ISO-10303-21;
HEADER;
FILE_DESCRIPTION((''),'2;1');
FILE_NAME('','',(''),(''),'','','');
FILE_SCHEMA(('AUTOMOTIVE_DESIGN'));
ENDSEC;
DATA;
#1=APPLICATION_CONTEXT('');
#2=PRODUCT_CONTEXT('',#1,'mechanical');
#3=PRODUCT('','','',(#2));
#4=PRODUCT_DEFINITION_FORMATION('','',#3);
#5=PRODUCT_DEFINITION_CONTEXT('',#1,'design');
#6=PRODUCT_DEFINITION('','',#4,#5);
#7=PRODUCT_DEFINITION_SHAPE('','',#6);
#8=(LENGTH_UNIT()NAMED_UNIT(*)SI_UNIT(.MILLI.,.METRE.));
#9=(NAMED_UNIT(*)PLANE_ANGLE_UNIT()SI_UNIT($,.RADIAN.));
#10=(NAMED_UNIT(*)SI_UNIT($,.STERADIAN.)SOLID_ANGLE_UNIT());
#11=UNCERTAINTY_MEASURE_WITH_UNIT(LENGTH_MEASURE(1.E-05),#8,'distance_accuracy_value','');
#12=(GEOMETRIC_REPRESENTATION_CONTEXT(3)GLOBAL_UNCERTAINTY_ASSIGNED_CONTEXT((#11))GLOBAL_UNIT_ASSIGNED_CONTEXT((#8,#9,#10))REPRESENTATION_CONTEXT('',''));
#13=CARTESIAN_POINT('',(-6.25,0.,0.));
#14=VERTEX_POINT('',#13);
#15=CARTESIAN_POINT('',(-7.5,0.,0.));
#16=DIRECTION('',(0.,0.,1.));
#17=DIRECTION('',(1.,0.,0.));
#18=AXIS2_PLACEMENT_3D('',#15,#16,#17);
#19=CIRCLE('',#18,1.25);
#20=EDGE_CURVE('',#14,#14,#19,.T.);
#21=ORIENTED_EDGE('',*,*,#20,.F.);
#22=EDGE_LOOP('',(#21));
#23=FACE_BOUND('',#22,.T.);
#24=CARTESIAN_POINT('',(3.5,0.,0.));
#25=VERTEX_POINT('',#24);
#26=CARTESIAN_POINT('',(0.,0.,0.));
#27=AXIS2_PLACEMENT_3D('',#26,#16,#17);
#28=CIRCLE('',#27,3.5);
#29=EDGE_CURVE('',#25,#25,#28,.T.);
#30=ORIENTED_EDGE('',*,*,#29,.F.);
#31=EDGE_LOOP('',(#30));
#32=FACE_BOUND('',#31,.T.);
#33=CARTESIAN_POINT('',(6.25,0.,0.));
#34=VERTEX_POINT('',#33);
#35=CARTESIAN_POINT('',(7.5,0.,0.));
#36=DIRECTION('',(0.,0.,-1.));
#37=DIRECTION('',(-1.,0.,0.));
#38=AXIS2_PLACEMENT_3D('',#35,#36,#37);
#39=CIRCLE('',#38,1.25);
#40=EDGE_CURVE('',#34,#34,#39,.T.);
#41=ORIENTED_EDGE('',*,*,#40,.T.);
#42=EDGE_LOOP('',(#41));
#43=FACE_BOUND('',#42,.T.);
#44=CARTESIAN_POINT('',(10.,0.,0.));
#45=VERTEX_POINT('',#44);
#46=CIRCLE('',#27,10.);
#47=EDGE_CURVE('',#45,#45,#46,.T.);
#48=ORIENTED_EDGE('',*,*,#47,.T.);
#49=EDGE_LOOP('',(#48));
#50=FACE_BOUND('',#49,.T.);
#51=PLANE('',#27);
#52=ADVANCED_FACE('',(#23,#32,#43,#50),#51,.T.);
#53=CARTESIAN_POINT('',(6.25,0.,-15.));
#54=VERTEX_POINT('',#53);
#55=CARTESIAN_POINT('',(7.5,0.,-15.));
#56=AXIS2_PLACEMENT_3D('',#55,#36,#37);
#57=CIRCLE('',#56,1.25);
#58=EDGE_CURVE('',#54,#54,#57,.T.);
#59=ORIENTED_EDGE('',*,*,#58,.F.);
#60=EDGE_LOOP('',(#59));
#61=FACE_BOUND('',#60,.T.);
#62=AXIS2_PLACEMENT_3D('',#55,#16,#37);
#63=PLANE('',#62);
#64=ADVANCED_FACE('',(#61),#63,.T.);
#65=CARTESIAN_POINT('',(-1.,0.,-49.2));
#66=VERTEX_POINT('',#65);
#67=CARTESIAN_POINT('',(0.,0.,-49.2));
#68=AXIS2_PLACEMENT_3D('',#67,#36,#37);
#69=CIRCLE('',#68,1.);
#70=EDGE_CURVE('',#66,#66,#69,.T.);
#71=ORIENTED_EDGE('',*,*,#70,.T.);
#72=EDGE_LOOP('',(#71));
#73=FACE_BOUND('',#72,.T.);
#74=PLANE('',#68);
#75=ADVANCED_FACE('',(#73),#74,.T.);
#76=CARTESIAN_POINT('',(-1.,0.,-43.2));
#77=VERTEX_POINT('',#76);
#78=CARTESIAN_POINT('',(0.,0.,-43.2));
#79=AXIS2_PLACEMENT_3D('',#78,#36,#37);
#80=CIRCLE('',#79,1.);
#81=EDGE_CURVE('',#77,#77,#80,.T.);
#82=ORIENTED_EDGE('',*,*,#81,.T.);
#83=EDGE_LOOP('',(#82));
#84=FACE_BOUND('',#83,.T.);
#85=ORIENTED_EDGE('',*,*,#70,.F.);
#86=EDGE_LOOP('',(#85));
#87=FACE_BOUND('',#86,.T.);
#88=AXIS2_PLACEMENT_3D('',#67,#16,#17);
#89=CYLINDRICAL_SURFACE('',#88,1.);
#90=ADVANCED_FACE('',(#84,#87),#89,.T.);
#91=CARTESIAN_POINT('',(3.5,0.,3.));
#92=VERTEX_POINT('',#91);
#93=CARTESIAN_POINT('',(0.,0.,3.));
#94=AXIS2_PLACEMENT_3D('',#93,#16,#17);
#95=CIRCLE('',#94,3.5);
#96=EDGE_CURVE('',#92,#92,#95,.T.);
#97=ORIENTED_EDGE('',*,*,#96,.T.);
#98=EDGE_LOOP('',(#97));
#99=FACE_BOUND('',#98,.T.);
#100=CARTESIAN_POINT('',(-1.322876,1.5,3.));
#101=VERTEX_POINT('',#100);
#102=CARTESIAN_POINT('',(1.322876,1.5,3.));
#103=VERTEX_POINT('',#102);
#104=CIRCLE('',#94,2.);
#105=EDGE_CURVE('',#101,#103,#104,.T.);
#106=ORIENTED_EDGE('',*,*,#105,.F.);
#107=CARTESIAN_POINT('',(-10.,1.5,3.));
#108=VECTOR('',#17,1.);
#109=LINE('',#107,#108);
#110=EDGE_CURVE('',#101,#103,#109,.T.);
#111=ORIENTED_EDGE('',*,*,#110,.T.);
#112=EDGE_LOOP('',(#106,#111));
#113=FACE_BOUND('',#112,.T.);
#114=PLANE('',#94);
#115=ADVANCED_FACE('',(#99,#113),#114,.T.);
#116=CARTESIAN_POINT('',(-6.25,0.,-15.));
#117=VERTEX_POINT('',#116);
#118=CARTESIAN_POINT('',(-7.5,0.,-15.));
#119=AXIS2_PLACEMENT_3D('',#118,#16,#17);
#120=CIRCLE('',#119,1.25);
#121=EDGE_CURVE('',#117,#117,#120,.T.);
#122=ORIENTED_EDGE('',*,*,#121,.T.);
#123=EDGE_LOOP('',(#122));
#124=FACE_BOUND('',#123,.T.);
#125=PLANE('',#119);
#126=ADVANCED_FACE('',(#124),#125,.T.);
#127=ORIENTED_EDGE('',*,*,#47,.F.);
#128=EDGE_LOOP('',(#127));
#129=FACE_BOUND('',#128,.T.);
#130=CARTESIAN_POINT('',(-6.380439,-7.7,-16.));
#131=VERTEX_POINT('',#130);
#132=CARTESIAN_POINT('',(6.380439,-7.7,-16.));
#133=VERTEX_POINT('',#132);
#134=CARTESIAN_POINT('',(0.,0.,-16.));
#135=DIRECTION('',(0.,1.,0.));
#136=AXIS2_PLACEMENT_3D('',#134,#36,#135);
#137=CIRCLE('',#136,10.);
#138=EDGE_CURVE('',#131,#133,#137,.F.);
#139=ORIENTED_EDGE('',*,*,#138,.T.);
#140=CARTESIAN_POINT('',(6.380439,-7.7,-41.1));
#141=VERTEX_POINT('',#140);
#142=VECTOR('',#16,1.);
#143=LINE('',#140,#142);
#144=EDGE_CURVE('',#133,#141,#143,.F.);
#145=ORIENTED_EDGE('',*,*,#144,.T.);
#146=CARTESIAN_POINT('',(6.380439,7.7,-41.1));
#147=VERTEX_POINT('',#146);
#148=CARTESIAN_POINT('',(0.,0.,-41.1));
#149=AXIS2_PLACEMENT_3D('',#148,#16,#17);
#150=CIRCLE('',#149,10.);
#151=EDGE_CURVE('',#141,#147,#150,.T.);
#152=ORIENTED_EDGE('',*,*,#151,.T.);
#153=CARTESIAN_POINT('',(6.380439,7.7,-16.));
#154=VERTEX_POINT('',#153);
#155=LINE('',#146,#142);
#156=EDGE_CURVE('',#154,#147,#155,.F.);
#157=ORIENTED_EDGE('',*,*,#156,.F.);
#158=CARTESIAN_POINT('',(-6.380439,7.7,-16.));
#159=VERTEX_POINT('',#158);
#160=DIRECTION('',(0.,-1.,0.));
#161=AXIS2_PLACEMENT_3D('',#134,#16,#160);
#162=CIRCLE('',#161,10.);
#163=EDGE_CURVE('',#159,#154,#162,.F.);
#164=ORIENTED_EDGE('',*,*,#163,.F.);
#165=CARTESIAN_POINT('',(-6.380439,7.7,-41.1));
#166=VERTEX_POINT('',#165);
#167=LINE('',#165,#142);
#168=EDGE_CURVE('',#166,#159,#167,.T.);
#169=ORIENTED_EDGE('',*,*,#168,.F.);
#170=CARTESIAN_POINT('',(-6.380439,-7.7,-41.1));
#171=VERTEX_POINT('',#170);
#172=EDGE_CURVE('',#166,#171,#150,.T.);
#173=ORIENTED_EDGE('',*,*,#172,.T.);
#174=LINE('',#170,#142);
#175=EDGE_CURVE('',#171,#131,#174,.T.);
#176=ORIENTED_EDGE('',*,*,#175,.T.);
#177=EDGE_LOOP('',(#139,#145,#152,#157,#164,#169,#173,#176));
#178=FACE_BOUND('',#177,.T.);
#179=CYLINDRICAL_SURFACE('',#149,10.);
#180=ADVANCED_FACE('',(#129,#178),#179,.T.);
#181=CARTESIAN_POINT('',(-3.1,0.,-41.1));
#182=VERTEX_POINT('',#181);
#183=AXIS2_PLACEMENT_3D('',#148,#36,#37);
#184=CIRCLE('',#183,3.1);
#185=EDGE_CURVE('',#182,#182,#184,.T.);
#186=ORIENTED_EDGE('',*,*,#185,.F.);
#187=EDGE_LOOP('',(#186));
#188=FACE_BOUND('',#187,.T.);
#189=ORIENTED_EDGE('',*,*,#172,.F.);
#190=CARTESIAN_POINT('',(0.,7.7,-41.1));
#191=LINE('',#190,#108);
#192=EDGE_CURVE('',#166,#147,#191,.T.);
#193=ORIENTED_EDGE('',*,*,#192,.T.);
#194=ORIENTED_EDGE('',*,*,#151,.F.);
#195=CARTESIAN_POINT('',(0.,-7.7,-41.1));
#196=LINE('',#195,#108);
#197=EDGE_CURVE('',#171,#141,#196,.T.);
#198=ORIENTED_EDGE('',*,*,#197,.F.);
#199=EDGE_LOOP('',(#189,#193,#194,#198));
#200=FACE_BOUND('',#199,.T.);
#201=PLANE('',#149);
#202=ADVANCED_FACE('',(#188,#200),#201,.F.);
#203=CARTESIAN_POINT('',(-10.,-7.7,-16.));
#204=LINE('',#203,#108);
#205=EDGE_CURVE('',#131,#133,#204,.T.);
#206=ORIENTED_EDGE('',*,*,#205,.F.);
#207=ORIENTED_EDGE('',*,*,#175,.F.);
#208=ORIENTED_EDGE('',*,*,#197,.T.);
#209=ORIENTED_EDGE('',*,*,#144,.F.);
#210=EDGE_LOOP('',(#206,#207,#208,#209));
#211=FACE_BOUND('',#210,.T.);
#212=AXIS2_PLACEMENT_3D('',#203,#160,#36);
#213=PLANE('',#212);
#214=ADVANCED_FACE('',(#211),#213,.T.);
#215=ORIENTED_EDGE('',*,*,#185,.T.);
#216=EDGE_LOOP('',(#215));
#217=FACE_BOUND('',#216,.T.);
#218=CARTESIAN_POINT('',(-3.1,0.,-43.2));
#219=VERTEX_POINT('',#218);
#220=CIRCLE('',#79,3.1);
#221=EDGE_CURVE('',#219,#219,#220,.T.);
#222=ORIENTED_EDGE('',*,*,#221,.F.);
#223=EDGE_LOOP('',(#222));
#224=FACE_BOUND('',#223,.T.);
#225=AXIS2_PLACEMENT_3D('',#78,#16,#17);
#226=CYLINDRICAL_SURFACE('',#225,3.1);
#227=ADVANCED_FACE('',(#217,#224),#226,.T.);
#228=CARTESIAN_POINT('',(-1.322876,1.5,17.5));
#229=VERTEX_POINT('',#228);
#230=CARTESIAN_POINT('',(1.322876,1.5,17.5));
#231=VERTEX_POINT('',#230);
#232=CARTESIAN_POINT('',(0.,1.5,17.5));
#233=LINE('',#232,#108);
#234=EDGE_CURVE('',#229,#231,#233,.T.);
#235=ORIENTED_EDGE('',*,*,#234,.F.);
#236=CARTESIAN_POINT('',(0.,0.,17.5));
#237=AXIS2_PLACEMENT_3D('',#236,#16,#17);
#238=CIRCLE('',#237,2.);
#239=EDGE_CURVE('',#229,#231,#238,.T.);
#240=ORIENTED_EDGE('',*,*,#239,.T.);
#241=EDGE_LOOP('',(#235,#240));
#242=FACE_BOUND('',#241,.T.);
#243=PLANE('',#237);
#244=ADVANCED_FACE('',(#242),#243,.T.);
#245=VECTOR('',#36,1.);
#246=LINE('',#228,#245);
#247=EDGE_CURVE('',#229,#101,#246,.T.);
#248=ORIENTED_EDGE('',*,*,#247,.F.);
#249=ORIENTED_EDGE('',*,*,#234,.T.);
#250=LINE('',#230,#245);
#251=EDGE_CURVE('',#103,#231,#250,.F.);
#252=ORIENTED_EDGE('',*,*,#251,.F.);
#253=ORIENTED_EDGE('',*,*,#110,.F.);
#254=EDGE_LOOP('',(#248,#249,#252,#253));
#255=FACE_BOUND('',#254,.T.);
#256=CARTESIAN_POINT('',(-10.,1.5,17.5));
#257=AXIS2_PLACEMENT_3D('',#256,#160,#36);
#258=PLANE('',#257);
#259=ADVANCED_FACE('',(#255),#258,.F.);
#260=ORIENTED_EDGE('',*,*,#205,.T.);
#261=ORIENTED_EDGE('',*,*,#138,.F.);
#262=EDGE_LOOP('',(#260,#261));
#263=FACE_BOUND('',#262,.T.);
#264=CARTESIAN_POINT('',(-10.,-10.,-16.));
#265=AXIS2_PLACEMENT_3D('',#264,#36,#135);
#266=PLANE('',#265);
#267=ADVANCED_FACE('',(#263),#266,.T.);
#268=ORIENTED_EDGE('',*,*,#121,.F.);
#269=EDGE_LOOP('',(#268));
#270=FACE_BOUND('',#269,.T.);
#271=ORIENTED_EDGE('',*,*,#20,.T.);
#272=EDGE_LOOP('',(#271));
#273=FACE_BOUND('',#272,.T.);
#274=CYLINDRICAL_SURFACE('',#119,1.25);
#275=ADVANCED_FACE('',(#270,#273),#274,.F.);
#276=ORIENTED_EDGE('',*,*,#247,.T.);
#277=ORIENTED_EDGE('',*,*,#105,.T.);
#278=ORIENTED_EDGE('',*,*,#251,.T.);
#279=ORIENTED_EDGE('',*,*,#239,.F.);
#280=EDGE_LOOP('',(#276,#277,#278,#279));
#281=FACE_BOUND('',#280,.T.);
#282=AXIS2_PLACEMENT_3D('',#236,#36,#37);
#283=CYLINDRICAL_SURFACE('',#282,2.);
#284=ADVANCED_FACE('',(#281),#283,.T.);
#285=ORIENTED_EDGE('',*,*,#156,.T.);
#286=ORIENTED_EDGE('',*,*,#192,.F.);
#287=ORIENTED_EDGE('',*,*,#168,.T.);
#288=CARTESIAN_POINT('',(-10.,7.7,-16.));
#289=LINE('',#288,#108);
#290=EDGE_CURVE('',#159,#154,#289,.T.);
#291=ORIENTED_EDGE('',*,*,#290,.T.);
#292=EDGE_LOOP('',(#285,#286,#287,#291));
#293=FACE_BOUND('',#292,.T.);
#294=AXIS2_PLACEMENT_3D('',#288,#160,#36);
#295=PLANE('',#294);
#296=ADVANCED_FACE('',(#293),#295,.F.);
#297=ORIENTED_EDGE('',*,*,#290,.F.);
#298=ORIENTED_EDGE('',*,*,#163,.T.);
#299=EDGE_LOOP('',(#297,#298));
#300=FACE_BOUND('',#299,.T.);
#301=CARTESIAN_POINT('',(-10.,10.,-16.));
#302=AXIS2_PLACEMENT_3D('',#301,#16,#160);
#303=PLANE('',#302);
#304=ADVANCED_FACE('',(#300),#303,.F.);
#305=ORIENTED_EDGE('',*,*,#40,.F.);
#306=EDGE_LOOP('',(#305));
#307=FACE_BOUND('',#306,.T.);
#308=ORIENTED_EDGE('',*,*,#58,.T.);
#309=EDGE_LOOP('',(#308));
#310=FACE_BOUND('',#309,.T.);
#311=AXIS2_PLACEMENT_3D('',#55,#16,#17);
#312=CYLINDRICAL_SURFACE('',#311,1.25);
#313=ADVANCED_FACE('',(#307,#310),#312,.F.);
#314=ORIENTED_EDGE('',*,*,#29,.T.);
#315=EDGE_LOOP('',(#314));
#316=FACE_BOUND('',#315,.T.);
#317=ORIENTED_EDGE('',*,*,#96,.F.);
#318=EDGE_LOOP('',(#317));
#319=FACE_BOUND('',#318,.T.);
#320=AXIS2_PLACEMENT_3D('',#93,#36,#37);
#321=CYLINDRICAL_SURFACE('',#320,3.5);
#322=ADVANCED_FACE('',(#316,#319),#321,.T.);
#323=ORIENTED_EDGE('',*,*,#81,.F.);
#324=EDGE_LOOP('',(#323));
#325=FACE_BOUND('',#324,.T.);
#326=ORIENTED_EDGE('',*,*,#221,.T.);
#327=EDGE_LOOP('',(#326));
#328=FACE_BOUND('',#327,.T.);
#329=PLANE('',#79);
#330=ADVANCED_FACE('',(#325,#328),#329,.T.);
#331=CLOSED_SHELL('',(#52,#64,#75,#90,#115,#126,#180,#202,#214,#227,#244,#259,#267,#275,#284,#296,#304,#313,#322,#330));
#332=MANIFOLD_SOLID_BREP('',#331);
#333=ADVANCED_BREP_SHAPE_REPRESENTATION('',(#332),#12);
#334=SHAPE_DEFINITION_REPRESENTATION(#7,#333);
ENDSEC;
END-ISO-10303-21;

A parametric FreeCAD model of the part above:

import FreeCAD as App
import Part
import Sketcher
from FreeCAD import Vector

doc = App.newDocument("Part")
params = doc.addObject("Spreadsheet::Sheet", "Params")
for row, (alias, value) in enumerate([
    ("sketch1_diameter", "20 mm"),
    ("pad1_length", "41.1 mm"),
    ("sketch2_width", "2.3 mm"),
    ("sketch2_height", "25.1 mm"),
    ("pocket1_length", "88.930087 mm"),
    ("sketch3_diameter", "7 mm"),
    ("pad2_length", "3 mm"),
    ("sketch4_diameter", "4 mm"),
    ("pad3_length", "14.5 mm"),
    ("sketch5_width", "0.5 mm"),
    ("sketch5_height", "14.5 mm"),
    ("sketch6_diameter", "6.2 mm"),
    ("pad4_length", "2.1 mm"),
    ("sketch7_diameter", "2 mm"),
    ("pad5_length", "6 mm"),
    ("sketch8_diameter", "2.5 mm"),
    ("pocket3_length", "15 mm"),
], start=1):
    params.set(f"A{row}", alias)
    params.set(f"B{row}", "=" + value)
    params.setAlias(f"B{row}", alias)

body = doc.addObject("PartDesign::Body", "Body")

sketch1 = body.newObject("Sketcher::SketchObject", "Sketch")
sketch1.AttachmentSupport = (doc.getObject("XY_Plane"), [""])
sketch1.MapMode = "FlatFace"
sketch1.addGeometry(Part.Circle(Vector(0, 0, 0), Vector(0, 0, 1), 10), False)
sketch1.addConstraint(Sketcher.Constraint("Coincident", 0, 3, -1, 1))
sketch1.addConstraint(Sketcher.Constraint("Diameter", 0, 20.0))
sketch1.setExpression("Constraints[1]", "Params.sketch1_diameter")
pad1 = body.newObject("PartDesign::Pad", "Pad")
pad1.Profile = sketch1
pad1.setExpression("Length", "Params.pad1_length")
pad1.Reversed = True

sketch2 = body.newObject("Sketcher::SketchObject", "Sketch001")
sketch2.AttachmentSupport = (doc.getObject("YZ_Plane"), [""])
sketch2.MapMode = "FlatFace"
sketch2.addGeometry(Part.LineSegment(Vector(10, -16, 0), Vector(7.7, -16, 0)), False)
sketch2.addGeometry(Part.LineSegment(Vector(7.7, -16, 0), Vector(7.7, -41.1, 0)), False)
sketch2.addGeometry(Part.LineSegment(Vector(7.7, -41.1, 0), Vector(10, -41.1, 0)), False)
sketch2.addGeometry(Part.LineSegment(Vector(10, -41.1, 0), Vector(10, -16, 0)), False)
sketch2.addConstraint(Sketcher.Constraint("Coincident", 0, 2, 1, 1))
sketch2.addConstraint(Sketcher.Constraint("Coincident", 1, 2, 2, 1))
sketch2.addConstraint(Sketcher.Constraint("Coincident", 2, 2, 3, 1))
sketch2.addConstraint(Sketcher.Constraint("Coincident", 3, 2, 0, 1))
sketch2.addConstraint(Sketcher.Constraint("Horizontal", 0))
sketch2.addConstraint(Sketcher.Constraint("Vertical", 1))
sketch2.addConstraint(Sketcher.Constraint("Horizontal", 2))
sketch2.addConstraint(Sketcher.Constraint("Vertical", 3))
sketch2.addConstraint(Sketcher.Constraint("DistanceX", 0, 2, 0, 1, 2.3))
sketch2.addConstraint(Sketcher.Constraint("DistanceY", 1, 2, 1, 1, 25.1))
sketch2.addConstraint(Sketcher.Constraint("DistanceY", 0, 2, -1, 1, 16.0))
sketch2.addConstraint(Sketcher.Constraint("DistanceX", -1, 1, 2, 2, 10.0))
sketch2.setExpression("Constraints[8]", "Params.sketch2_width")
sketch2.setExpression("Constraints[9]", "Params.sketch2_height")
pocket1 = body.newObject("PartDesign::Pocket", "Pocket")
pocket1.Profile = sketch2
pocket1.setExpression("Length", "Params.pocket1_length")
pocket1.Midplane = True
doc.recompute()

mirrored = body.newObject("PartDesign::Mirrored", "Mirrored")
mirrored.Originals = [pocket1]
mirrored.MirrorPlane = (doc.getObject("XZ_Plane"), [""])
body.Tip = mirrored

sketch3 = body.newObject("Sketcher::SketchObject", "Sketch002")
sketch3.AttachmentSupport = (doc.getObject("XY_Plane"), [""])
sketch3.MapMode = "FlatFace"
sketch3.addGeometry(Part.Circle(Vector(0, 0, 0), Vector(0, 0, 1), 3.5), False)
sketch3.addConstraint(Sketcher.Constraint("Coincident", 0, 3, -1, 1))
sketch3.addConstraint(Sketcher.Constraint("Diameter", 0, 7.0))
sketch3.setExpression("Constraints[1]", "Params.sketch3_diameter")
pad2 = body.newObject("PartDesign::Pad", "Pad001")
pad2.Profile = sketch3
pad2.setExpression("Length", "Params.pad2_length")

sketch4 = body.newObject("Sketcher::SketchObject", "Sketch003")
sketch4.AttachmentSupport = (doc.getObject("XY_Plane"), [""])
sketch4.MapMode = "FlatFace"
sketch4.AttachmentOffset = App.Placement(Vector(0, 0, 3), App.Rotation())
sketch4.addGeometry(Part.Circle(Vector(0, 0, 0), Vector(0, 0, 1), 2), False)
sketch4.addConstraint(Sketcher.Constraint("Coincident", 0, 3, -1, 1))
sketch4.addConstraint(Sketcher.Constraint("Diameter", 0, 4.0))
sketch4.setExpression("Constraints[1]", "Params.sketch4_diameter")
pad3 = body.newObject("PartDesign::Pad", "Pad002")
pad3.Profile = sketch4
pad3.setExpression("Length", "Params.pad3_length")

sketch5 = body.newObject("Sketcher::SketchObject", "Sketch004")
sketch5.AttachmentSupport = (doc.getObject("YZ_Plane"), [""])
sketch5.MapMode = "FlatFace"
sketch5.addGeometry(Part.LineSegment(Vector(2, 17.5, 0), Vector(1.5, 17.5, 0)), False)
sketch5.addGeometry(Part.LineSegment(Vector(1.5, 17.5, 0), Vector(1.5, 3, 0)), False)
sketch5.addGeometry(Part.LineSegment(Vector(1.5, 3, 0), Vector(2, 3, 0)), False)
sketch5.addGeometry(Part.LineSegment(Vector(2, 3, 0), Vector(2, 17.5, 0)), False)
sketch5.addConstraint(Sketcher.Constraint("Coincident", 0, 2, 1, 1))
sketch5.addConstraint(Sketcher.Constraint("Coincident", 1, 2, 2, 1))
sketch5.addConstraint(Sketcher.Constraint("Coincident", 2, 2, 3, 1))
sketch5.addConstraint(Sketcher.Constraint("Coincident", 3, 2, 0, 1))
sketch5.addConstraint(Sketcher.Constraint("Horizontal", 0))
sketch5.addConstraint(Sketcher.Constraint("Vertical", 1))
sketch5.addConstraint(Sketcher.Constraint("Horizontal", 2))
sketch5.addConstraint(Sketcher.Constraint("Vertical", 3))
sketch5.addConstraint(Sketcher.Constraint("DistanceX", 0, 2, 0, 1, 0.5))
sketch5.addConstraint(Sketcher.Constraint("DistanceY", 1, 2, 1, 1, 14.5))
sketch5.addConstraint(Sketcher.Constraint("DistanceY", -1, 1, 1, 2, 3.0))
sketch5.addConstraint(Sketcher.Constraint("DistanceX", -1, 1, 2, 2, 2.0))
sketch5.setExpression("Constraints[8]", "Params.sketch5_width")
sketch5.setExpression("Constraints[9]", "Params.sketch5_height")
pocket2 = body.newObject("PartDesign::Pocket", "Pocket001")
pocket2.Profile = sketch5
pocket2.Type = "ThroughAll"
pocket2.Midplane = True

sketch6 = body.newObject("Sketcher::SketchObject", "Sketch005")
sketch6.AttachmentSupport = (doc.getObject("XY_Plane"), [""])
sketch6.MapMode = "FlatFace"
sketch6.AttachmentOffset = App.Placement(Vector(0, 0, -41.1), App.Rotation())
sketch6.addGeometry(Part.Circle(Vector(0, 0, 0), Vector(0, 0, 1), 3.1), False)
sketch6.addConstraint(Sketcher.Constraint("Coincident", 0, 3, -1, 1))
sketch6.addConstraint(Sketcher.Constraint("Diameter", 0, 6.2))
sketch6.setExpression("Constraints[1]", "Params.sketch6_diameter")
pad4 = body.newObject("PartDesign::Pad", "Pad003")
pad4.Profile = sketch6
pad4.setExpression("Length", "Params.pad4_length")
pad4.Reversed = True

sketch7 = body.newObject("Sketcher::SketchObject", "Sketch006")
sketch7.AttachmentSupport = (doc.getObject("XY_Plane"), [""])
sketch7.MapMode = "FlatFace"
sketch7.AttachmentOffset = App.Placement(Vector(0, 0, -43.2), App.Rotation())
sketch7.addGeometry(Part.Circle(Vector(0, 0, 0), Vector(0, 0, 1), 1), False)
sketch7.addConstraint(Sketcher.Constraint("Coincident", 0, 3, -1, 1))
sketch7.addConstraint(Sketcher.Constraint("Diameter", 0, 2.0))
sketch7.setExpression("Constraints[1]", "Params.sketch7_diameter")
pad5 = body.newObject("PartDesign::Pad", "Pad004")
pad5.Profile = sketch7
pad5.setExpression("Length", "Params.pad5_length")
pad5.Reversed = True

sketch8 = body.newObject("Sketcher::SketchObject", "Sketch007")
sketch8.AttachmentSupport = (doc.getObject("XY_Plane"), [""])
sketch8.MapMode = "FlatFace"
sketch8.addGeometry(Part.Circle(Vector(-7.5, 0, 0), Vector(0, 0, 1), 1.25), False)
sketch8.addConstraint(Sketcher.Constraint("PointOnObject", 0, 3, -1))
sketch8.addConstraint(Sketcher.Constraint("Diameter", 0, 2.5))
sketch8.addConstraint(Sketcher.Constraint("DistanceX", 0, 3, -1, 1, 7.5))
sketch8.setExpression("Constraints[1]", "Params.sketch8_diameter")
pocket3 = body.newObject("PartDesign::Pocket", "Pocket002")
pocket3.Profile = sketch8
pocket3.setExpression("Length", "Params.pocket3_length")
doc.recompute()

mirrored2 = body.newObject("PartDesign::Mirrored", "Mirrored001")
mirrored2.Originals = [pocket3]
mirrored2.MirrorPlane = (doc.getObject("YZ_Plane"), [""])
body.Tip = mirrored2

doc.recompute()
